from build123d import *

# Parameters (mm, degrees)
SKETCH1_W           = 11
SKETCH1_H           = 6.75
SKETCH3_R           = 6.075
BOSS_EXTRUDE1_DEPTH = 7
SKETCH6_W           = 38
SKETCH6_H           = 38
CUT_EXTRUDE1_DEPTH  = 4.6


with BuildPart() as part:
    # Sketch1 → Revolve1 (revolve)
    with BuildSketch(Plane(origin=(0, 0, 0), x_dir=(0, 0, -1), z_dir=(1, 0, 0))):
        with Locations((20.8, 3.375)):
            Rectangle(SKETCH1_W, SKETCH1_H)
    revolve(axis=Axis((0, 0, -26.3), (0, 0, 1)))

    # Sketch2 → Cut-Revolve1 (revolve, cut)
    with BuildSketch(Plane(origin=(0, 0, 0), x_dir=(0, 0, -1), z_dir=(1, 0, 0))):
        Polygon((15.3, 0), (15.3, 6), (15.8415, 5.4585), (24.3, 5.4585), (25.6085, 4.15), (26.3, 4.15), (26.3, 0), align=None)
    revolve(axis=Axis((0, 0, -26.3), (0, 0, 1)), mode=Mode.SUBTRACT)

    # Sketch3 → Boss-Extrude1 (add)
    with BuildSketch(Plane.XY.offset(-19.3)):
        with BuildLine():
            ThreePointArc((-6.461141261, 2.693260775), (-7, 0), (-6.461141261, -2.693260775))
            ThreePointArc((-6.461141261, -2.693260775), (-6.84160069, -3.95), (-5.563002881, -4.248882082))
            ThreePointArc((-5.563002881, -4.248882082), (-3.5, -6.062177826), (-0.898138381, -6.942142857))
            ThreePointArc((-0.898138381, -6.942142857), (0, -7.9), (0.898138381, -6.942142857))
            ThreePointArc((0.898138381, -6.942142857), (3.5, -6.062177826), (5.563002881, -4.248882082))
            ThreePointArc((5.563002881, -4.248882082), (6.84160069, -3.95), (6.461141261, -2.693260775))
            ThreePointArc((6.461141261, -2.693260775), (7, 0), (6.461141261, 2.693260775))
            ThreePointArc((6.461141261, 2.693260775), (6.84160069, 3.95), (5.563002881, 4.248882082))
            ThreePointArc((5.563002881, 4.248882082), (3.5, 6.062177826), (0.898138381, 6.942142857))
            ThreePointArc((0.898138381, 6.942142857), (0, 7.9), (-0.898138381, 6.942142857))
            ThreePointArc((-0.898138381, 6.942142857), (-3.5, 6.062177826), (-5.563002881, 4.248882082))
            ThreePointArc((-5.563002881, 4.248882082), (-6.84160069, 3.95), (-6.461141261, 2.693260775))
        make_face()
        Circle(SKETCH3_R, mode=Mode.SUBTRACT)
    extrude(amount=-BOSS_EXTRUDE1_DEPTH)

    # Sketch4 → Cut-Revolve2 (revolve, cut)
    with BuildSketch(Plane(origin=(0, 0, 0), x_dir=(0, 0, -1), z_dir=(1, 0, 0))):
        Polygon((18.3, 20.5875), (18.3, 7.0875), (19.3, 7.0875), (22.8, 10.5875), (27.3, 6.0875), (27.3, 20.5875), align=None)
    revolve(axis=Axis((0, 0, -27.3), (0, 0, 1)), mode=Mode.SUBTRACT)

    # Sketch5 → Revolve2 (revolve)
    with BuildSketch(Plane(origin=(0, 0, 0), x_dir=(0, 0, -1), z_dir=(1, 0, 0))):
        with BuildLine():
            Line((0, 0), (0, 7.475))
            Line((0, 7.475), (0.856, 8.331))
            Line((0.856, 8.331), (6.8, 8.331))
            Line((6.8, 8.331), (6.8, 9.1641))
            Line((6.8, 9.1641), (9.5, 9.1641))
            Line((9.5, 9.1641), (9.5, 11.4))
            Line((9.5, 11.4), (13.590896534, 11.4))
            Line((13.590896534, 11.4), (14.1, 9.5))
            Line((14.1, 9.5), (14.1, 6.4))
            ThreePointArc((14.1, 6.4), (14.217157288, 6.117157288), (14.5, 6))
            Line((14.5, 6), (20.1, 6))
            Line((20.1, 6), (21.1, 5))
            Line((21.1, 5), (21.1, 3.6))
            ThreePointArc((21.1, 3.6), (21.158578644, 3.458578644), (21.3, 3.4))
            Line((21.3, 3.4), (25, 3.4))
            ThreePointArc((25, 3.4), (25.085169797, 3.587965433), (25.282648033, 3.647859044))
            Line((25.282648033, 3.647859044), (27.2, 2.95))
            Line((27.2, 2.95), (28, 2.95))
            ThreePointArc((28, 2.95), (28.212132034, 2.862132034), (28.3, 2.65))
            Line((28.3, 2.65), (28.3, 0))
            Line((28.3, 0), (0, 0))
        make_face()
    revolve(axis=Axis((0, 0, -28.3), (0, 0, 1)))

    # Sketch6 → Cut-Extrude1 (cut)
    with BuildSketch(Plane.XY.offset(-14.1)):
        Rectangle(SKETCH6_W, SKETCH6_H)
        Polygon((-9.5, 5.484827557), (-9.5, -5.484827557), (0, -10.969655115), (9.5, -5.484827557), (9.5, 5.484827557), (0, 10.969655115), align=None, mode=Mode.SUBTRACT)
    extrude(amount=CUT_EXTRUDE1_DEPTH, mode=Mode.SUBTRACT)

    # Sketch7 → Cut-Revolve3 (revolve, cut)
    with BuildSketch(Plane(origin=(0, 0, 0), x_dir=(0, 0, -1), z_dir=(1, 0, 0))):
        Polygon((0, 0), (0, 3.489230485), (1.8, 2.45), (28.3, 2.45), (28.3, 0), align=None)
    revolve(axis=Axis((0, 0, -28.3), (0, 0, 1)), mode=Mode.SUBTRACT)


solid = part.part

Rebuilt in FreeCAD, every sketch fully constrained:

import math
import FreeCAD as App
import Part
import Sketcher

V = App.Vector
Q = App.Units.Quantity


def add_polygon(sketch, points):
    """Adds a closed chain of lines whose ends are joined by coincident constraints."""
    first, n = sketch.GeometryCount, len(points)
    for a, b in zip(points, points[1:] + points[:1]):
        sketch.addGeometry(Part.LineSegment(App.Vector(*a, 0), App.Vector(*b, 0)), False)
    for i in range(n):
        sketch.addConstraint(Sketcher.Constraint("Coincident", first + i, 2, first + (i + 1) % n, 1))

doc = App.newDocument("Part")
params = doc.addObject("Spreadsheet::Sheet", "Params")
for row, (alias, value) in enumerate([
    ("sketch1_height", "11 mm"),
    ("sketch1_width", "6.75 mm"),
    ("revolution_angle", "360 deg"),
    ("sketch2_width", "6 mm"),
    ("sketch2_height", "11 mm"),
    ("sketch2_width2", "4.15 mm"),
    ("groove_angle", "360 deg"),
    ("sketch3_radius", "7 mm"),
    ("sketch3_radius2", "0.9 mm"),
    ("sketch3_diameter", "12.15 mm"),
    ("pad1_length", "7 mm"),
    ("sketch4_height", "1 mm"),
    ("sketch4_height2", "9 mm"),
    ("sketch4_width", "13.5 mm"),
    ("sketch4_width2", "14.5 mm"),
    ("groove2_angle", "360 deg"),
    ("sketch5_radius", "0.3 mm"),
    ("sketch5_radius2", "0.2 mm"),
    ("sketch5_radius3", "0.4 mm"),
    ("sketch5_radius4", "0.25 mm"),
    ("sketch5_width", "1.4 mm"),
    ("revolution2_angle", "360 deg"),
    ("sketch6_width", "38 mm"),
    ("pocket1_length", "4.6 mm"),
    ("sketch7_height", "28.3 mm"),
    ("sketch7_height2", "26.5 mm"),
    ("sketch7_width", "2.45 mm"),
    ("groove3_angle", "360 deg"),
], start=1):
    params.set(f"A{row}", alias)
    params.set(f"B{row}", "=" + value)
    params.setAlias(f"B{row}", alias)

body = doc.addObject("PartDesign::Body", "Body")

sketch1 = doc.addObject("Sketcher::SketchObject", "Sketch")
body.addObject(sketch1)
sketch1.AttachmentSupport = (doc.YZ_Plane, [""])
sketch1.MapMode = "FlatFace"
add_polygon(sketch1, [(7, -15), (0, -15), (0, -26), (7, -26)])
sketch1.addConstraint(Sketcher.Constraint("Horizontal", 0))
sketch1.addConstraint(Sketcher.Constraint("Vertical", 1))
sketch1.addConstraint(Sketcher.Constraint("Horizontal", 2))
sketch1.addConstraint(Sketcher.Constraint("Vertical", 3))
sketch1.addConstraint(Sketcher.Constraint("PointOnObject", 0, 2, -2))
sketch1.addConstraint(Sketcher.Constraint("DistanceY", 1, 2, 1, 1, 11.0))
sketch1.addConstraint(Sketcher.Constraint("DistanceX", 0, 2, 0, 1, 6.75))
sketch1.addConstraint(Sketcher.Constraint("DistanceY", 0, 2, -1, 1, 15.3))
sketch1.setExpression("Constraints[9]", "Params.sketch1_height")
sketch1.setExpression("Constraints[10]", "Params.sketch1_width")
revolution = doc.addObject("PartDesign::Revolution", "Revolution")
body.addObject(revolution)
revolution.Profile = sketch1
revolution.ReferenceAxis = (sketch1, ["V_Axis"])
revolution.setExpression("Angle", "Params.revolution_angle")

sketch2 = doc.addObject("Sketcher::SketchObject", "Sketch001")
body.addObject(sketch2)
sketch2.AttachmentSupport = (doc.YZ_Plane, [""])
sketch2.MapMode = "FlatFace"
add_polygon(sketch2, [(6, -15.3), (0, -15.3), (0, -26.3), (4.2, -26.3), (4.2, -25.6), (5.5, -24.3), (5.5, -15.8)])
sketch2.addConstraint(Sketcher.Constraint("Horizontal", 0))
sketch2.addConstraint(Sketcher.Constraint("Vertical", 1))
sketch2.addConstraint(Sketcher.Constraint("Horizontal", 2))
sketch2.addConstraint(Sketcher.Constraint("Vertical", 3))
sketch2.addConstraint(Sketcher.Constraint("Vertical", 5))
sketch2.addConstraint(Sketcher.Constraint("PointOnObject", 0, 2, -2))
sketch2.addConstraint(Sketcher.Constraint("Parallel", 4, 6))
sketch2.addConstraint(Sketcher.Constraint("DistanceX", 0, 2, 0, 1, 6.0))
sketch2.addConstraint(Sketcher.Constraint("DistanceY", 1, 2, 1, 1, 11.0))
sketch2.addConstraint(Sketcher.Constraint("Angle", 4, Q("45 deg")))
sketch2.addConstraint(Sketcher.Constraint("DistanceY", 2, 2, 4, 2, 2.0))
sketch2.addConstraint(Sketcher.Constraint("DistanceX", 2, 1, 2, 2, 4.15))
sketch2.addConstraint(Sketcher.Constraint("DistanceY", 0, 2, -1, 1, 15.3))
sketch2.addConstraint(Sketcher.Constraint("DistanceY", 3, 1, 3, 2, 0.6915))
sketch2.setExpression("Constraints[14]", "Params.sketch2_width")
sketch2.setExpression("Constraints[15]", "Params.sketch2_height")
sketch2.setExpression("Constraints[18]", "Params.sketch2_width2")
groove = doc.addObject("PartDesign::Groove", "Groove")
body.addObject(groove)
groove.Profile = sketch2
groove.ReferenceAxis = (sketch2, ["V_Axis"])
groove.setExpression("Angle", "Params.groove_angle")

sketch3 = doc.addObject("Sketcher::SketchObject", "Sketch002")
body.addObject(sketch3)
sketch3.AttachmentSupport = (doc.XY_Plane, [""])
sketch3.MapMode = "FlatFace"
sketch3.AttachmentOffset = App.Placement(V(0, 0, -19.3), App.Rotation())
sketch3.addGeometry(Part.ArcOfCircle(Part.Circle(V(0, 0, 0), V(0, 0, 1), 7), math.radians(157), math.radians(203)), False)
sketch3.addGeometry(Part.ArcOfCircle(Part.Circle(V(-6.1, -3.5, 0), V(0, 0, 1), 0.9), math.radians(116), math.radians(304)), False)
sketch3.addGeometry(Part.ArcOfCircle(Part.Circle(V(0, 0, 0), V(0, 0, 1), 7), math.radians(-143), math.radians(-97)), False)
sketch3.addGeometry(Part.ArcOfCircle(Part.Circle(V(0, -7, 0), V(0, 0, 1), 0.9), math.radians(176), math.radians(364)), False)
sketch3.addGeometry(Part.ArcOfCircle(Part.Circle(V(0, 0, 0), V(0, 0, 1), 7), math.radians(-83), math.radians(-37)), False)
sketch3.addGeometry(Part.ArcOfCircle(Part.Circle(V(6.1, -3.5, 0), V(0, 0, 1), 0.9), math.radians(-124), math.radians(64)), False)
sketch3.addGeometry(Part.ArcOfCircle(Part.Circle(V(0, 0, 0), V(0, 0, 1), 7), math.radians(-23), math.radians(23)), False)
sketch3.addGeometry(Part.ArcOfCircle(Part.Circle(V(6.1, 3.5, 0), V(0, 0, 1), 0.9), math.radians(-64), math.radians(124)), False)
sketch3.addGeometry(Part.ArcOfCircle(Part.Circle(V(0, 0, 0), V(0, 0, 1), 7), math.radians(37), math.radians(83)), False)
sketch3.addGeometry(Part.ArcOfCircle(Part.Circle(V(0, 7, 0), V(0, 0, 1), 0.9), math.radians(-4), math.radians(184)), False)
sketch3.addGeometry(Part.ArcOfCircle(Part.Circle(V(0, 0, 0), V(0, 0, 1), 7), math.radians(97), math.radians(143)), False)
sketch3.addGeometry(Part.ArcOfCircle(Part.Circle(V(-6.1, 3.5, 0), V(0, 0, 1), 0.9), math.radians(56), math.radians(244)), False)
sketch3.addGeometry(Part.Circle(V(0, 0, 0), V(0, 0, 1), 6.1), False)
sketch3.addConstraint(Sketcher.Constraint("Coincident", 0, 2, 1, 1))
sketch3.addConstraint(Sketcher.Constraint("Coincident", 1, 2, 2, 1))
sketch3.addConstraint(Sketcher.Constraint("Coincident", 2, 2, 3, 1))
sketch3.addConstraint(Sketcher.Constraint("Coincident", 3, 2, 4, 1))
sketch3.addConstraint(Sketcher.Constraint("Coincident", 4, 2, 5, 1))
sketch3.addConstraint(Sketcher.Constraint("Coincident", 5, 2, 6, 1))
sketch3.addConstraint(Sketcher.Constraint("Coincident", 6, 2, 7, 1))
sketch3.addConstraint(Sketcher.Constraint("Coincident", 7, 2, 8, 1))
sketch3.addConstraint(Sketcher.Constraint("Coincident", 8, 2, 9, 1))
sketch3.addConstraint(Sketcher.Constraint("Coincident", 9, 2, 10, 1))
sketch3.addConstraint(Sketcher.Constraint("Coincident", 10, 2, 11, 1))
sketch3.addConstraint(Sketcher.Constraint("Coincident", 11, 2, 0, 1))
sketch3.addConstraint(Sketcher.Constraint("Coincident", 0, 3, -1, 1))
sketch3.addConstraint(Sketcher.Constraint("Coincident", 2, 3, -1, 1))
sketch3.addConstraint(Sketcher.Constraint("Coincident", 4, 3, -1, 1))
sketch3.addConstraint(Sketcher.Constraint("Coincident", 6, 3, -1, 1))
sketch3.addConstraint(Sketcher.Constraint("Coincident", 8, 3, -1, 1))
sketch3.addConstraint(Sketcher.Constraint("Coincident", 10, 3, -1, 1))
sketch3.addConstraint(Sketcher.Constraint("Coincident", 12, 3, -1, 1))
sketch3.addConstraint(Sketcher.Constraint("Equal", 0, 2))
sketch3.addConstraint(Sketcher.Constraint("Equal", 1, 3))
sketch3.addConstraint(Sketcher.Constraint("Equal", 2, 4))
sketch3.addConstraint(Sketcher.Constraint("Equal", 3, 5))
sketch3.addConstraint(Sketcher.Constraint("Equal", 4, 6))
sketch3.addConstraint(Sketcher.Constraint("Equal", 5, 7))
sketch3.addConstraint(Sketcher.Constraint("Equal", 6, 8))
sketch3.addConstraint(Sketcher.Constraint("Equal", 7, 9))
sketch3.addConstraint(Sketcher.Constraint("Equal", 8, 10))
sketch3.addConstraint(Sketcher.Constraint("Equal", 9, 11))
sketch3.addConstraint(Sketcher.Constraint("Symmetric", 1, 3, 7, 3, -1, 1))
sketch3.addConstraint(Sketcher.Constraint("Symmetric", 3, 3, 9, 3, -1, 1))
sketch3.addConstraint(Sketcher.Constraint("Symmetric", 5, 3, 11, 3, -1, 1))
sketch3.addConstraint(Sketcher.Constraint("Symmetric", 1, 3, 5, 3, -2))
sketch3.addConstraint(Sketcher.Constraint("PointOnObject", 3, 3, -2))
sketch3.addConstraint(Sketcher.Constraint("Radius", 0, 7.0))
sketch3.addConstraint(Sketcher.Constraint("Radius", 1, 0.9))
sketch3.addConstraint(Sketcher.Constraint("Diameter", 12, 12.15))
sketch3.addConstraint(Sketcher.Constraint("DistanceY", 3, 3, -1, 1, 7.0))
sketch3.addConstraint(Sketcher.Constraint("DistanceY", 5, 3, 7, 3, 7.0))
sketch3.addConstraint(Sketcher.Constraint("DistanceX", 0, 2, -1, 1, 6.461141))
sketch3.setExpression("Constraints[34]", "Params.sketch3_radius")
sketch3.setExpression("Constraints[35]", "Params.sketch3_radius2")
sketch3.setExpression("Constraints[36]", "Params.sketch3_diameter")
pad1 = doc.addObject("PartDesign::Pad", "Pad")
body.addObject(pad1)
pad1.Profile = sketch3
pad1.setExpression("Length", "Params.pad1_length")
pad1.Reversed = True

sketch4 = doc.addObject("Sketcher::SketchObject", "Sketch003")
body.addObject(sketch4)
sketch4.AttachmentSupport = (doc.YZ_Plane, [""])
sketch4.MapMode = "FlatFace"
add_polygon(sketch4, [(20.6, -18.3), (7.1, -18.3), (7.1, -19.3), (10.6, -22.8), (6.1, -27.3), (20.6, -27.3)])
sketch4.addConstraint(Sketcher.Constraint("Horizontal", 0))
sketch4.addConstraint(Sketcher.Constraint("Vertical", 1))
sketch4.addConstraint(Sketcher.Constraint("Horizontal", 4))
sketch4.addConstraint(Sketcher.Constraint("Vertical", 5))
sketch4.addConstraint(Sketcher.Constraint("Perpendicular", 2, 3))
sketch4.addConstraint(Sketcher.Constraint("DistanceY", 1, 2, 1, 1, 1.0))
sketch4.addConstraint(Sketcher.Constraint("DistanceY", 5, 1, 5, 2, 9.0))
sketch4.addConstraint(Sketcher.Constraint("Angle", 2, Q("-45 deg")))
sketch4.addConstraint(Sketcher.Constraint("DistanceX", 0, 2, 0, 1, 13.5))
sketch4.addConstraint(Sketcher.Constraint("DistanceX", 4, 1, 4, 2, 14.5))
sketch4.addConstraint(Sketcher.Constraint("DistanceY", 0, 2, -1, 1, 18.3))
sketch4.addConstraint(Sketcher.Constraint("DistanceX", -1, 1, 0, 2, 7.0875))
sketch4.setExpression("Constraints[11]", "Params.sketch4_height")
sketch4.setExpression("Constraints[12]", "Params.sketch4_height2")
sketch4.setExpression("Constraints[14]", "Params.sketch4_width")
sketch4.setExpression("Constraints[15]", "Params.sketch4_width2")
groove2 = doc.addObject("PartDesign::Groove", "Groove001")
body.addObject(groove2)
groove2.Profile = sketch4
groove2.ReferenceAxis = (sketch4, ["V_Axis"])
groove2.setExpression("Angle", "Params.groove2_angle")

sketch5 = doc.addObject("Sketcher::SketchObject", "Sketch004")
body.addObject(sketch5)
sketch5.AttachmentSupport = (doc.YZ_Plane, [""])
sketch5.MapMode = "FlatFace"
sketch5.addGeometry(Part.LineSegment(V(7.47, 0, 0), V(0, 0, 0)), False)
sketch5.addGeometry(Part.LineSegment(V(0, 0, 0), V(0, -28.3, 0)), False)
sketch5.addGeometry(Part.LineSegment(V(0, -28.3, 0), V(2.65, -28.3, 0)), False)
sketch5.addGeometry(Part.ArcOfCircle(Part.Circle(V(2.65, -28, 0), V(0, 0, 1), 0.3), math.radians(-90), math.radians(0)), False)
sketch5.addGeometry(Part.LineSegment(V(2.95, -28, 0), V(2.95, -27.2, 0)), False)
sketch5.addGeometry(Part.LineSegment(V(2.95, -27.2, 0), V(3.65, -25.28, 0)), False)
sketch5.addGeometry(Part.ArcOfCircle(Part.Circle(V(3.4, -25.25, 0), V(0, 0, 1), 0.25), math.radians(-8), math.radians(90)), False)
sketch5.addGeometry(Part.LineSegment(V(3.4, -25, 0), V(3.4, -21.3, 0)), False)
sketch5.addGeometry(Part.ArcOfCircle(Part.Circle(V(3.6, -21.3, 0), V(0, 0, 1), 0.2), math.radians(90), math.radians(180)), False)
sketch5.addGeometry(Part.LineSegment(V(3.6, -21.1, 0), V(5, -21.1, 0)), False)
sketch5.addGeometry(Part.LineSegment(V(5, -21.1, 0), V(6, -20.1, 0)), False)
sketch5.addGeometry(Part.LineSegment(V(6, -20.1, 0), V(6, -14.5, 0)), False)
sketch5.addGeometry(Part.ArcOfCircle(Part.Circle(V(6.4, -14.5, 0), V(0, 0, 1), 0.4), math.radians(90), math.radians(180)), False)
sketch5.addGeometry(Part.LineSegment(V(6.4, -14.1, 0), V(9.5, -14.1, 0)), False)
sketch5.addGeometry(Part.LineSegment(V(9.5, -14.1, 0), V(11.4, -13.59, 0)), False)
sketch5.addGeometry(Part.LineSegment(V(11.4, -13.59, 0), V(11.4, -9.5, 0)), False)
sketch5.addGeometry(Part.LineSegment(V(11.4, -9.5, 0), V(9.16, -9.5, 0)), False)
sketch5.addGeometry(Part.LineSegment(V(9.16, -9.5, 0), V(9.16, -6.8, 0)), False)
sketch5.addGeometry(Part.LineSegment(V(9.16, -6.8, 0), V(8.33, -6.8, 0)), False)
sketch5.addGeometry(Part.LineSegment(V(8.33, -6.8, 0), V(8.33, -0.86, 0)), False)
sketch5.addGeometry(Part.LineSegment(V(8.33, -0.86, 0), V(7.47, 0, 0)), False)
sketch5.addConstraint(Sketcher.Constraint("Coincident", 0, 2, 1, 1))
sketch5.addConstraint(Sketcher.Constraint("Coincident", 1, 2, 2, 1))
sketch5.addConstraint(Sketcher.Constraint("Tangent", 2, 2, 3, 1))
sketch5.addConstraint(Sketcher.Constraint("Tangent", 3, 2, 4, 1))
sketch5.addConstraint(Sketcher.Constraint("Coincident", 4, 2, 5, 1))
sketch5.addConstraint(Sketcher.Constraint("Coincident", 5, 2, 6, 1))
sketch5.addConstraint(Sketcher.Constraint("Coincident", 6, 2, 7, 1))
sketch5.addConstraint(Sketcher.Constraint("Tangent", 7, 2, 8, 2))
sketch5.addConstraint(Sketcher.Constraint("Tangent", 8, 1, 9, 1))
sketch5.addConstraint(Sketcher.Constraint("Coincident", 9, 2, 10, 1))
sketch5.addConstraint(Sketcher.Constraint("Coincident", 10, 2, 11, 1))
sketch5.addConstraint(Sketcher.Constraint("Tangent", 11, 2, 12, 2))
sketch5.addConstraint(Sketcher.Constraint("Tangent", 12, 1, 13, 1))
sketch5.addConstraint(Sketcher.Constraint("Coincident", 13, 2, 14, 1))
sketch5.addConstraint(Sketcher.Constraint("Coincident", 14, 2, 15, 1))
sketch5.addConstraint(Sketcher.Constraint("Coincident", 15, 2, 16, 1))
sketch5.addConstraint(Sketcher.Constraint("Coincident", 16, 2, 17, 1))
sketch5.addConstraint(Sketcher.Constraint("Coincident", 17, 2, 18, 1))
sketch5.addConstraint(Sketcher.Constraint("Coincident", 18, 2, 19, 1))
sketch5.addConstraint(Sketcher.Constraint("Coincident", 19, 2, 20, 1))
sketch5.addConstraint(Sketcher.Constraint("Coincident", 20, 2, 0, 1))
sketch5.addConstraint(Sketcher.Constraint("Horizontal", 0))
sketch5.addConstraint(Sketcher.Constraint("Vertical", 1))
sketch5.addConstraint(Sketcher.Constraint("Horizontal", 2))
sketch5.addConstraint(Sketcher.Constraint("Vertical", 4))
sketch5.addConstraint(Sketcher.Constraint("Vertical", 7))
sketch5.addConstraint(Sketcher.Constraint("Horizontal", 9))
sketch5.addConstraint(Sketcher.Constraint("Vertical", 11))
sketch5.addConstraint(Sketcher.Constraint("Horizontal", 13))
sketch5.addConstraint(Sketcher.Constraint("Vertical", 15))
sketch5.addConstraint(Sketcher.Constraint("Horizontal", 16))
sketch5.addConstraint(Sketcher.Constraint("Vertical", 17))
sketch5.addConstraint(Sketcher.Constraint("Horizontal", 18))
sketch5.addConstraint(Sketcher.Constraint("Vertical", 19))
sketch5.addConstraint(Sketcher.Constraint("Coincident", 0, 2, -1, 1))
sketch5.addConstraint(Sketcher.Constraint("Perpendicular", 10, 20))
sketch5.addConstraint(Sketcher.Constraint("Radius", 3, 0.3))
sketch5.addConstraint(Sketcher.Constraint("Radius", 8, 0.2))
sketch5.addConstraint(Sketcher.Constraint("Radius", 12, 0.4))
sketch5.addConstraint(Sketcher.Constraint("Angle", 5, Q("70 deg")))
sketch5.addConstraint(Sketcher.Constraint("Angle", 10, Q("45 deg")))
sketch5.addConstraint(Sketcher.Constraint("Angle", 14, Q("15 deg")))
sketch5.addConstraint(Sketcher.Constraint("Radius", 6, 0.25))
sketch5.addConstraint(Sketcher.Constraint("DistanceX", 9, 1, 9, 2, 1.4))
sketch5.addConstraint(Sketcher.Constraint("DistanceX", 13, 1, 13, 2, 3.1))
sketch5.addConstraint(Sketcher.Constraint("DistanceY", 1, 2, 1, 1, 28.3))
sketch5.addConstraint(Sketcher.Constraint("DistanceY", 4, 1, 4, 2, 0.8))
sketch5.addConstraint(Sketcher.Constraint("DistanceY", 7, 1, 7, 2, 3.7))
sketch5.addConstraint(Sketcher.Constraint("DistanceY", 11, 1, 11, 2, 5.6))
sketch5.addConstraint(Sketcher.Constraint("DistanceY", 17, 1, 17, 2, 2.7))
sketch5.addConstraint(Sketcher.Constraint("DistanceY", 6, 2, -1, 1, 25.0))
sketch5.addConstraint(Sketcher.Constraint("DistanceX", -1, 1, 9, 2, 5.0))
sketch5.addConstraint(Sketcher.Constraint("DistanceX", -1, 1, 10, 2, 6.0))
sketch5.addConstraint(Sketcher.Constraint("DistanceX", 6, 3, 12, 3, 3.0))
sketch5.addConstraint(Sketcher.Constraint("DistanceX", 12, 1, 14, 2, 5.0))
sketch5.addConstraint(Sketcher.Constraint("DistanceY", 12, 3, 15, 2, 5.0))
sketch5.addConstraint(Sketcher.Constraint("DistanceX", 2, 1, 2, 2, 2.65))
sketch5.addConstraint(Sketcher.Constraint("DistanceX", 0, 2, 0, 1, 7.475))
sketch5.addConstraint(Sketcher.Constraint("DistanceY", 19, 1, 19, 2, 5.944))
sketch5.addConstraint(Sketcher.Constraint("DistanceX", 16, 2, 16, 1, 2.2359))
sketch5.setExpression("Constraints[36]", "Params.sketch5_radius")
sketch5.setExpression("Constraints[37]", "Params.sketch5_radius2")
sketch5.setExpression("Constraints[38]", "Params.sketch5_radius3")
sketch5.setExpression("Constraints[42]", "Params.sketch5_radius4")
sketch5.setExpression("Constraints[43]", "Params.sketch5_width")
revolution2 = doc.addObject("PartDesign::Revolution", "Revolution001")
body.addObject(revolution2)
revolution2.Profile = sketch5
revolution2.ReferenceAxis = (sketch5, ["V_Axis"])
revolution2.setExpression("Angle", "Params.revolution2_angle")

sketch6 = doc.addObject("Sketcher::SketchObject", "Sketch005")
body.addObject(sketch6)
sketch6.AttachmentSupport = (doc.XY_Plane, [""])
sketch6.MapMode = "FlatFace"
sketch6.AttachmentOffset = App.Placement(V(0, 0, -14.1), App.Rotation())
add_polygon(sketch6, [(-19, 19), (-19, -19), (19, -19), (19, 19)])
add_polygon(sketch6, [(-10, -5), (-10, 5), (0, 11), (10, 5), (10, -5), (0, -11)])
sketch6.addConstraint(Sketcher.Constraint("Vertical", 0))
sketch6.addConstraint(Sketcher.Constraint("Horizontal", 1))
sketch6.addConstraint(Sketcher.Constraint("Vertical", 2))
sketch6.addConstraint(Sketcher.Constraint("Horizontal", 3))
sketch6.addConstraint(Sketcher.Constraint("Vertical", 4))
sketch6.addConstraint(Sketcher.Constraint("Vertical", 7))
sketch6.addConstraint(Sketcher.Constraint("Symmetric", 0, 2, 2, 2, -1, 1))
sketch6.addConstraint(Sketcher.Constraint("Symmetric", 4, 2, 7, 2, -1, 1))
sketch6.addConstraint(Sketcher.Constraint("Symmetric", 5, 2, 8, 2, -1, 1))
sketch6.addConstraint(Sketcher.Constraint("PointOnObject", 5, 2, -2))
sketch6.addConstraint(Sketcher.Constraint("Parallel", 6, 9))
sketch6.addConstraint(Sketcher.Constraint("Horizontal", 4, 2, 6, 2))
sketch6.addConstraint(Sketcher.Constraint("Equal", 3, 0))
sketch6.addConstraint(Sketcher.Constraint("DistanceX", 1, 1, 1, 2, 38.0))
sketch6.addConstraint(Sketcher.Constraint("Angle", 5, Q("30 deg")))
sketch6.addConstraint(Sketcher.Constraint("DistanceX", 4, 2, 6, 2, 19.0))
sketch6.addConstraint(Sketcher.Constraint("DistanceY", 4, 1, 4, 2, 10.969655))
sketch6.setExpression("Constraints[23]", "Params.sketch6_width")
pocket1 = doc.addObject("PartDesign::Pocket", "Pocket")
body.addObject(pocket1)
pocket1.Profile = sketch6
pocket1.setExpression("Length", "Params.pocket1_length")
pocket1.Reversed = True

sketch7 = doc.addObject("Sketcher::SketchObject", "Sketch006")
body.addObject(sketch7)
sketch7.AttachmentSupport = (doc.YZ_Plane, [""])
sketch7.MapMode = "FlatFace"
add_polygon(sketch7, [(3.5, 0), (0, 0), (0, -28.3), (2.5, -28.3), (2.5, -1.8)])
sketch7.addConstraint(Sketcher.Constraint("Horizontal", 0))
sketch7.addConstraint(Sketcher.Constraint("Vertical", 1))
sketch7.addConstraint(Sketcher.Constraint("Horizontal", 2))
sketch7.addConstraint(Sketcher.Constraint("Vertical", 3))
sketch7.addConstraint(Sketcher.Constraint("Coincident", 0, 2, -1, 1))
sketch7.addConstraint(Sketcher.Constraint("Angle", 4, Q("60 deg")))
sketch7.addConstraint(Sketcher.Constraint("DistanceY", 1, 2, 1, 1, 28.3))
sketch7.addConstraint(Sketcher.Constraint("DistanceY", 3, 1, 3, 2, 26.5))
sketch7.addConstraint(Sketcher.Constraint("DistanceX", 2, 1, 2, 2, 2.45))
sketch7.setExpression("Constraints[11]", "Params.sketch7_height")
sketch7.setExpression("Constraints[12]", "Params.sketch7_height2")
sketch7.setExpression("Constraints[13]", "Params.sketch7_width")
groove3 = doc.addObject("PartDesign::Groove", "Groove002")
body.addObject(groove3)
groove3.Profile = sketch7
groove3.ReferenceAxis = (sketch7, ["V_Axis"])
groove3.setExpression("Angle", "Params.groove3_angle")

doc.recompute()
